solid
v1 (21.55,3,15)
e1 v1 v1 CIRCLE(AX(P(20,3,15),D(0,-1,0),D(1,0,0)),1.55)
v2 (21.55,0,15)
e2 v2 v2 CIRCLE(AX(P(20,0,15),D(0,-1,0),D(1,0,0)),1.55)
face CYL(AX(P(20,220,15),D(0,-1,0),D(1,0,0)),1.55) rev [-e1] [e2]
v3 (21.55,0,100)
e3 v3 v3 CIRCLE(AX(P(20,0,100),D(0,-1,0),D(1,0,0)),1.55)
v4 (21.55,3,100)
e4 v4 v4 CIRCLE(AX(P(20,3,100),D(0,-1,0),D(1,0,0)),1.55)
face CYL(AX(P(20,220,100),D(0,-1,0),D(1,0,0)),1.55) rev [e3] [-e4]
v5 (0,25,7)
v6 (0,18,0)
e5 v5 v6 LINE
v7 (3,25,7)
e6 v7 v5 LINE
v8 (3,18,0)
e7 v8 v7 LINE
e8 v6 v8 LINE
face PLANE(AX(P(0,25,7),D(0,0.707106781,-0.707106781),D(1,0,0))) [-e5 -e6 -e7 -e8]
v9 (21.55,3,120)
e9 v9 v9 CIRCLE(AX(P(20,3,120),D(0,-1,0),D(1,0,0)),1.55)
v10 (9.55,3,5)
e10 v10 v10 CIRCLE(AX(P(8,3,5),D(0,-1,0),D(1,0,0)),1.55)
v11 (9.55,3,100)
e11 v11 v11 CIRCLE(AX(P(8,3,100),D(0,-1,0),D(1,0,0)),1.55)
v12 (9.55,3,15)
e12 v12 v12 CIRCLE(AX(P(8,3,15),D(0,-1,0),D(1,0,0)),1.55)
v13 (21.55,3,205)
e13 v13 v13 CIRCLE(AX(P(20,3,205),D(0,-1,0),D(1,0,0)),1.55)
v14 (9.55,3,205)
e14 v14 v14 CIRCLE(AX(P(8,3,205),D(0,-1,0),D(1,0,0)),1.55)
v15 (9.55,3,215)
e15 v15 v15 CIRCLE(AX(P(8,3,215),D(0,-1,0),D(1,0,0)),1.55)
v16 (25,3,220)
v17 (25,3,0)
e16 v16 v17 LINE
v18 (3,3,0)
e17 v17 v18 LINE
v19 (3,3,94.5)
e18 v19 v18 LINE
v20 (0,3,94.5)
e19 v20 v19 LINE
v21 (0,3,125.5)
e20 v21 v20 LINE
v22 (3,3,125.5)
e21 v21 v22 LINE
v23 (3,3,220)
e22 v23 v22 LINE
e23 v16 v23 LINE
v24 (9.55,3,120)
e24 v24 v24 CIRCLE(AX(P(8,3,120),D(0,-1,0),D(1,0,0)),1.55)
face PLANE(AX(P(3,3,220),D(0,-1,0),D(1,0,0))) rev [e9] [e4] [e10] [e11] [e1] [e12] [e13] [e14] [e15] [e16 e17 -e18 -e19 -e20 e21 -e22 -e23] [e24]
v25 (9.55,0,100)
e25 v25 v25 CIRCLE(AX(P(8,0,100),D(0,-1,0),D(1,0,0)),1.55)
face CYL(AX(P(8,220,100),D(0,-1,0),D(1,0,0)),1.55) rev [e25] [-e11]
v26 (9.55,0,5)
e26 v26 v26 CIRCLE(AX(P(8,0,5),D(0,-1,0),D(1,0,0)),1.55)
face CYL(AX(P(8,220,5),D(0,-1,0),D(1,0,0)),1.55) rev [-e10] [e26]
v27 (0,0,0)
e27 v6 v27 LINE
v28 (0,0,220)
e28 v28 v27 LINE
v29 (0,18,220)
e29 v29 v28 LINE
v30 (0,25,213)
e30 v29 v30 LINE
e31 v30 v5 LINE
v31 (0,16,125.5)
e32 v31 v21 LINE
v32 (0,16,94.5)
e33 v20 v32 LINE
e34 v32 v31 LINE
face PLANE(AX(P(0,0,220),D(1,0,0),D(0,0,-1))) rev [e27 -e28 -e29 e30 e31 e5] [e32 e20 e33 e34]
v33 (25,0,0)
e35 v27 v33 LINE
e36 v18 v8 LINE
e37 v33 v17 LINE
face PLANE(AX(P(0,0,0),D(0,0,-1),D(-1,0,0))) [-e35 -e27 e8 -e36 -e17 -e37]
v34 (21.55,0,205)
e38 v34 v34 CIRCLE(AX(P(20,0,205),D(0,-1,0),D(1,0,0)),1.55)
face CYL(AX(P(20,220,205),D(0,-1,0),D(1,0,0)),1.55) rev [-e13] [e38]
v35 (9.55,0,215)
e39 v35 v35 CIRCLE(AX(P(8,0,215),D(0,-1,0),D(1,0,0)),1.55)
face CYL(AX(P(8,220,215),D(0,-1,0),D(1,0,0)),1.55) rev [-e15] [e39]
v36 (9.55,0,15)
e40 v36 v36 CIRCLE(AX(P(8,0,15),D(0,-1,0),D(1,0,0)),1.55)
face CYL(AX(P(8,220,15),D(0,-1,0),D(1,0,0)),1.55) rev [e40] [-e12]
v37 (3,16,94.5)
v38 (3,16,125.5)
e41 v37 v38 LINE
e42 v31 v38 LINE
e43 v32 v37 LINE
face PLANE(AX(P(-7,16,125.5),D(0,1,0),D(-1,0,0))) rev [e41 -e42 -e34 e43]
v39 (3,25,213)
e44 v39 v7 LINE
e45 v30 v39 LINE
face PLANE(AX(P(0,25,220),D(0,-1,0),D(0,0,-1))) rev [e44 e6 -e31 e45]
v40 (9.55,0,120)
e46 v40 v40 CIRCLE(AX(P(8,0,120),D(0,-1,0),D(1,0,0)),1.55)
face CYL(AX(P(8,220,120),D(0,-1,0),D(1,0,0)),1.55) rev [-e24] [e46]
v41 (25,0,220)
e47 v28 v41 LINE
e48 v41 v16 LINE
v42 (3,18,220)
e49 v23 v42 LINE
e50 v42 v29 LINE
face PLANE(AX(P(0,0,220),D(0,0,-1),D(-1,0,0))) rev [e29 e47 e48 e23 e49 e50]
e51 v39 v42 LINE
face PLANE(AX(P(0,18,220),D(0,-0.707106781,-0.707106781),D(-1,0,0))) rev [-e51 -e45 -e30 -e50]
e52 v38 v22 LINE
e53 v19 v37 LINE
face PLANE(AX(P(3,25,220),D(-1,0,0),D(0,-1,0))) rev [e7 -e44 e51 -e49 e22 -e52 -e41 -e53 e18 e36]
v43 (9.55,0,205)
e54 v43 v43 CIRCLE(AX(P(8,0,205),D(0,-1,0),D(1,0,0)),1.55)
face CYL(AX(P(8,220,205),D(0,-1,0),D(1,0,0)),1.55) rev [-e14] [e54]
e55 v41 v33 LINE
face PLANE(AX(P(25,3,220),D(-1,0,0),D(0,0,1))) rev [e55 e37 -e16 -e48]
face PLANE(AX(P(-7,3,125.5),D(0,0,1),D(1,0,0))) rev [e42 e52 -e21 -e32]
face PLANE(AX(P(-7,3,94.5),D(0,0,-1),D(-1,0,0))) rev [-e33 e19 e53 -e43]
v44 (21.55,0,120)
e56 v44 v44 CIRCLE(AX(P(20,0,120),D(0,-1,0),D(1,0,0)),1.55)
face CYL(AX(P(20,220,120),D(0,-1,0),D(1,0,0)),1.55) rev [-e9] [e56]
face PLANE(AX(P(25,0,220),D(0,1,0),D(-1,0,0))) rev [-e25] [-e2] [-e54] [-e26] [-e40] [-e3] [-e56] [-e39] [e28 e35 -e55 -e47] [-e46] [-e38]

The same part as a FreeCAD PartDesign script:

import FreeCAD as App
import Part
import Sketcher
from FreeCAD import Vector
Q = App.Units.Quantity


def edges_at(feature, points):
    """Names of the edges that pass closest to the given points."""
    edges = feature.Shape.Edges
    near = lambda p: min(range(len(edges)), key=lambda i: edges[i].distToShape(Part.Vertex(*p))[0])
    return sorted({f"Edge{near(p) + 1}" for p in points})

doc = App.newDocument("Part")
params = doc.addObject("Spreadsheet::Sheet", "Params")
for row, (alias, value) in enumerate([
    ("sketch1_width", "25 mm"),
    ("sketch1_width2", "22 mm"),
    ("pad1_length", "220 mm"),
    ("sketch2_width", "13 mm"),
    ("sketch2_height", "31 mm"),
    ("pocket1_length", "10 mm"),
    ("sketch3_diameter", "3.1 mm"),
    ("pocket2_length", "220 mm"),
    ("chamfer_size", "7 mm"),
], start=1):
    params.set(f"A{row}", alias)
    params.set(f"B{row}", "=" + value)
    params.setAlias(f"B{row}", alias)

body = doc.addObject("PartDesign::Body", "Body")

# Sketch on XY plane
sketch1 = doc.addObject("Sketcher::SketchObject", "Sketch")
body.addObject(sketch1)
sketch1.AttachmentSupport = (doc.XY_Plane, [""])
sketch1.MapMode = "FlatFace"
sketch1.addGeometry([
    Part.LineSegment(Vector(0, 25, 0), Vector(0, 0, 0)),  # 0
    Part.LineSegment(Vector(0, 0, 0), Vector(25, 0, 0)),  # 1
    Part.LineSegment(Vector(25, 0, 0), Vector(25, 3, 0)),  # 2
    Part.LineSegment(Vector(25, 3, 0), Vector(3, 3, 0)),  # 3
    Part.LineSegment(Vector(3, 3, 0), Vector(3, 25, 0)),  # 4
    Part.LineSegment(Vector(3, 25, 0), Vector(0, 25, 0)),  # 5
], False)
sketch1.addConstraint([
    Sketcher.Constraint("Coincident", 0, 2, 1, 1),
    Sketcher.Constraint("Coincident", 1, 2, 2, 1),
    Sketcher.Constraint("Coincident", 2, 2, 3, 1),
    Sketcher.Constraint("Coincident", 3, 2, 4, 1),
    Sketcher.Constraint("Coincident", 4, 2, 5, 1),
    Sketcher.Constraint("Coincident", 5, 2, 0, 1),
    Sketcher.Constraint("Vertical", 0),
    Sketcher.Constraint("Horizontal", 1),
    Sketcher.Constraint("Vertical", 2),
    Sketcher.Constraint("Horizontal", 3),
    Sketcher.Constraint("Vertical", 4),
    Sketcher.Constraint("Horizontal", 5),
    Sketcher.Constraint("Coincident", 0, 2, -1, 1),
    Sketcher.Constraint("Equal", 1, 0),
    Sketcher.Constraint("Equal", 5, 2),
    Sketcher.Constraint("DistanceX", 1, 1, 1, 2, Q("25 mm")),
    Sketcher.Constraint("DistanceX", 3, 2, 3, 1, Q("22 mm")),
])
sketch1.setExpression("Constraints[15]", "Params.sketch1_width")
sketch1.setExpression("Constraints[16]", "Params.sketch1_width2")
pad1 = doc.addObject("PartDesign::Pad", "Pad")
body.addObject(pad1)
pad1.Profile = sketch1
pad1.setExpression("Length", "Params.pad1_length")

# Sketch on YZ plane
sketch2 = doc.addObject("Sketcher::SketchObject", "Sketch001")
body.addObject(sketch2)
sketch2.AttachmentSupport = (doc.YZ_Plane, [""])
sketch2.MapMode = "FlatFace"
sketch2.AttachmentOffset = App.Placement(Vector(0, 0, 3), App.Rotation())
sketch2.addGeometry([
    Part.LineSegment(Vector(16, 125.5, 0), Vector(3, 125.5, 0)),
    Part.LineSegment(Vector(3, 125.5, 0), Vector(3, 94.5, 0)),
    Part.LineSegment(Vector(3, 94.5, 0), Vector(16, 94.5, 0)),
    Part.LineSegment(Vector(16, 94.5, 0), Vector(16, 125.5, 0)),
], False)
sketch2.addConstraint([
    Sketcher.Constraint("Coincident", 0, 2, 1, 1),
    Sketcher.Constraint("Coincident", 1, 2, 2, 1),
    Sketcher.Constraint("Coincident", 2, 2, 3, 1),
    Sketcher.Constraint("Coincident", 3, 2, 0, 1),
    Sketcher.Constraint("Horizontal", 0),
    Sketcher.Constraint("Vertical", 1),
    Sketcher.Constraint("Horizontal", 2),
    Sketcher.Constraint("Vertical", 3),
    Sketcher.Constraint("DistanceX", 0, 2, 0, 1, Q("13 mm")),
    Sketcher.Constraint("DistanceY", 1, 2, 1, 1, Q("31 mm")),
    Sketcher.Constraint("DistanceX", -1, 1, 0, 2, Q("3 mm")),
    Sketcher.Constraint("DistanceY", -1, 1, 0, 2, Q("125.5 mm")),
])
sketch2.setExpression("Constraints[8]", "Params.sketch2_width")
sketch2.setExpression("Constraints[9]", "Params.sketch2_height")
pocket1 = doc.addObject("PartDesign::Pocket", "Pocket")
body.addObject(pocket1)
pocket1.Profile = sketch2
pocket1.setExpression("Length", "Params.pocket1_length")

# Sketch on XZ plane
sketch3 = doc.addObject("Sketcher::SketchObject", "Sketch002")
body.addObject(sketch3)
sketch3.AttachmentSupport = (doc.XZ_Plane, [""])
sketch3.MapMode = "FlatFace"
sketch3.addGeometry([
    Part.Circle(Vector(8, 100, 0), Vector(0, 0, 1), 1.55),  # 0
    Part.Circle(Vector(8, 120, 0), Vector(0, 0, 1), 1.55),  # 1
    Part.Circle(Vector(8, 215, 0), Vector(0, 0, 1), 1.55),  # 2
    Part.Circle(Vector(8, 205, 0), Vector(0, 0, 1), 1.55),  # 3
    Part.Circle(Vector(8, 15, 0), Vector(0, 0, 1), 1.55),  # 4
    Part.Circle(Vector(8, 5, 0), Vector(0, 0, 1), 1.55),  # 5
    Part.Circle(Vector(20, 120, 0), Vector(0, 0, 1), 1.55),  # 6
    Part.Circle(Vector(20, 100, 0), Vector(0, 0, 1), 1.55),  # 7
    Part.Circle(Vector(20, 15, 0), Vector(0, 0, 1), 1.55),  # 8
    Part.Circle(Vector(20, 205, 0), Vector(0, 0, 1), 1.55),  # 9
], False)
sketch3.addConstraint([
    Sketcher.Constraint("Equal", 0, 1),
    Sketcher.Constraint("Equal", 1, 2),
    Sketcher.Constraint("Equal", 2, 3),
    Sketcher.Constraint("Equal", 3, 4),
    Sketcher.Constraint("Equal", 4, 5),
    Sketcher.Constraint("Equal", 5, 6),
    Sketcher.Constraint("Equal", 6, 7),
    Sketcher.Constraint("Equal", 7, 8),
    Sketcher.Constraint("Equal", 8, 9),
    Sketcher.Constraint("Horizontal", 1, 3, 6, 3),
    Sketcher.Constraint("Horizontal", 0, 3, 7, 3),
    Sketcher.Constraint("Horizontal", 4, 3, 8, 3),
    Sketcher.Constraint("Horizontal", 3, 3, 9, 3),
    Sketcher.Constraint("Vertical", 0, 3, 1, 3),
    Sketcher.Constraint("Vertical", 1, 3, 2, 3),
    Sketcher.Constraint("Vertical", 2, 3, 3, 3),
    Sketcher.Constraint("Vertical", 3, 3, 4, 3),
    Sketcher.Constraint("Vertical", 4, 3, 5, 3),
    Sketcher.Constraint("Vertical", 6, 3, 7, 3),
    Sketcher.Constraint("Vertical", 7, 3, 8, 3),
    Sketcher.Constraint("Vertical", 8, 3, 9, 3),
    Sketcher.Constraint("Diameter", 0, Q("3.1 mm")),
    Sketcher.Constraint("DistanceX", -1, 1, 0, 3, Q("8 mm")),
    Sketcher.Constraint("DistanceY", -1, 1, 0, 3, Q("100 mm")),
    Sketcher.Constraint("DistanceY", -1, 1, 1, 3, Q("120 mm")),
    Sketcher.Constraint("DistanceY", -1, 1, 2, 3, Q("215 mm")),
    Sketcher.Constraint("DistanceY", -1, 1, 3, 3, Q("205 mm")),
    Sketcher.Constraint("DistanceY", -1, 1, 4, 3, Q("15 mm")),
    Sketcher.Constraint("DistanceY", -1, 1, 5, 3, Q("5 mm")),
    Sketcher.Constraint("DistanceX", -1, 1, 6, 3, Q("20 mm")),
])
sketch3.setExpression("Constraints[21]", "Params.sketch3_diameter")
pocket2 = doc.addObject("PartDesign::Pocket", "Pocket001")
body.addObject(pocket2)
pocket2.Profile = sketch3
pocket2.setExpression("Length", "Params.pocket2_length")
doc.recompute()

chamfer = doc.addObject("PartDesign::Chamfer", "Chamfer")
body.addObject(chamfer)
chamfer.Base = (pocket2, edges_at(pocket2, [(1.5, 25, 220), (1.5, 25, 0)]))
chamfer.setExpression("Size", "Params.chamfer_size")

doc.recompute()
